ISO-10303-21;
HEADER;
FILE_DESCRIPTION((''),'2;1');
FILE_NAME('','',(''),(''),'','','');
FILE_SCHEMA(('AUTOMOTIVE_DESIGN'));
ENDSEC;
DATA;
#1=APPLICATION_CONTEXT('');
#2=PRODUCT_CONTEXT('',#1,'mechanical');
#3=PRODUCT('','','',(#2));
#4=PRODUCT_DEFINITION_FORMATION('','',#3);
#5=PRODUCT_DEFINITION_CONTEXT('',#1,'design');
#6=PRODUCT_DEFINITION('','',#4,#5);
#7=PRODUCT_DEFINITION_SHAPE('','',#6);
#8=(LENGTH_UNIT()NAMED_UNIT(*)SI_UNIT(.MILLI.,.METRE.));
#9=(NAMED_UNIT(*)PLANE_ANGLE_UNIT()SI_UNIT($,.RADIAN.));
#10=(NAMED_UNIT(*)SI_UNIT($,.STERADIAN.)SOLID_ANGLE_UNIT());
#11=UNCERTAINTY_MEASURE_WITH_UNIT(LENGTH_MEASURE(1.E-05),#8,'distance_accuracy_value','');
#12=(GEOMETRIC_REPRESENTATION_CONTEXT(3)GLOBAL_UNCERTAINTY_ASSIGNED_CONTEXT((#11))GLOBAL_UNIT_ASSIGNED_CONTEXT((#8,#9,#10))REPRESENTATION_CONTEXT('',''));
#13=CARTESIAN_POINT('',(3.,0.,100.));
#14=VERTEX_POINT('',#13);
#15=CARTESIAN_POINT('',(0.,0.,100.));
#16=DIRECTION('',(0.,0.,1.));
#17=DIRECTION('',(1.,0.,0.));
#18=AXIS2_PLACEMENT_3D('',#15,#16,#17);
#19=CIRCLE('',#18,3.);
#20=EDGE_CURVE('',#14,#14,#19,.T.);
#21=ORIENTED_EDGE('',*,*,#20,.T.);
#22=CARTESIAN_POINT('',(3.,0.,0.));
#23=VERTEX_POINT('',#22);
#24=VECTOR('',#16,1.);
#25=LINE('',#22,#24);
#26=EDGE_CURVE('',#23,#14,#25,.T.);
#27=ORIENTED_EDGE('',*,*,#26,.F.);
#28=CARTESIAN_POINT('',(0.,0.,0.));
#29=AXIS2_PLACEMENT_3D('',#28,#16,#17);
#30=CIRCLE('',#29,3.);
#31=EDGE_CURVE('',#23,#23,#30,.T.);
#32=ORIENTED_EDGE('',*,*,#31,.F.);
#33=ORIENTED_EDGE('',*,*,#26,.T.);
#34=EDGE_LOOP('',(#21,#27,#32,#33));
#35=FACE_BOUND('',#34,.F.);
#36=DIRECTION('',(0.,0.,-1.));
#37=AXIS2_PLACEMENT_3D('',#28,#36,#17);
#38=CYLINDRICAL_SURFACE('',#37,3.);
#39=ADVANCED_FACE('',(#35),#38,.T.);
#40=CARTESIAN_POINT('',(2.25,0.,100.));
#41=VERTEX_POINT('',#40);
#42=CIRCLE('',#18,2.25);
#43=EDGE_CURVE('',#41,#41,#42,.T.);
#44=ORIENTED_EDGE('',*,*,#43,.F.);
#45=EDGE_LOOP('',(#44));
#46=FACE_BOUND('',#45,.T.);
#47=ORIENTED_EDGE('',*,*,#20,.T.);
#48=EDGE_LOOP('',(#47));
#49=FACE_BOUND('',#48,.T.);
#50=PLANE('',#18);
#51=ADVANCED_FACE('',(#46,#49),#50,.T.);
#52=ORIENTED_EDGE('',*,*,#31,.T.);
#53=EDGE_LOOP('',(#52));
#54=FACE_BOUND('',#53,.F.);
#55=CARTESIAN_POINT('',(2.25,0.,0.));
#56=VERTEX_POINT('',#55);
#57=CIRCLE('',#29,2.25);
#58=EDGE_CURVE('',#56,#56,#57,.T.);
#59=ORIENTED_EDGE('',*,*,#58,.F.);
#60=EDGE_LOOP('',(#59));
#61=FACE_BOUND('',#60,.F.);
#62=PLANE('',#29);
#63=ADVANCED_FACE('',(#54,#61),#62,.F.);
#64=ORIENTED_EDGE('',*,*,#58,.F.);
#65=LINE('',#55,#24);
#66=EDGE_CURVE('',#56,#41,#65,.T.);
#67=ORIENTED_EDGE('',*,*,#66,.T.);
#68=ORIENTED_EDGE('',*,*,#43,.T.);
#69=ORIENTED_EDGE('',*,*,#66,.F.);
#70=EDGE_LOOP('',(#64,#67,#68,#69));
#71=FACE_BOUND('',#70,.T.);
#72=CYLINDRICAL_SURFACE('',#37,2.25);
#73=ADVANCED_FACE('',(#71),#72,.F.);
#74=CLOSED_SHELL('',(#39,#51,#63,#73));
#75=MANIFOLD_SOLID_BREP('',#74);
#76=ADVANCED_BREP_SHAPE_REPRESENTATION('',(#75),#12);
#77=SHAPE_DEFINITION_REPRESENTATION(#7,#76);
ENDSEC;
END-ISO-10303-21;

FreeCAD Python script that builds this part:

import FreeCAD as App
import Part
import Sketcher
from FreeCAD import Vector
Q = App.Units.Quantity

doc = App.newDocument("Part")
body = doc.addObject("PartDesign::Body", "Body")

# Sketch on XY plane
sketch1 = body.newObject("Sketcher::SketchObject", "Sketch")
sketch1.AttachmentSupport = (doc.getObject("XY_Plane"), [""])
sketch1.MapMode = "FlatFace"
sketch1.addGeometry(Part.Circle(Vector(0, 0, 0), Vector(0, 0, 1), 3), False)
sketch1.addGeometry(Part.Circle(Vector(0, 0, 0), Vector(0, 0, 1), 2.2), False)
sketch1.addConstraint(Sketcher.Constraint("Coincident", 0, 3, -1, 1))
sketch1.addConstraint(Sketcher.Constraint("Coincident", 1, 3, -1, 1))
sketch1.addConstraint(Sketcher.Constraint("Diameter", 0, Q("6 mm")))
sketch1.addConstraint(Sketcher.Constraint("Diameter", 1, Q("4.5 mm")))
pad1 = body.newObject("PartDesign::Pad", "Pad")
pad1.Profile = sketch1
pad1.Length = 100

doc.recompute()
